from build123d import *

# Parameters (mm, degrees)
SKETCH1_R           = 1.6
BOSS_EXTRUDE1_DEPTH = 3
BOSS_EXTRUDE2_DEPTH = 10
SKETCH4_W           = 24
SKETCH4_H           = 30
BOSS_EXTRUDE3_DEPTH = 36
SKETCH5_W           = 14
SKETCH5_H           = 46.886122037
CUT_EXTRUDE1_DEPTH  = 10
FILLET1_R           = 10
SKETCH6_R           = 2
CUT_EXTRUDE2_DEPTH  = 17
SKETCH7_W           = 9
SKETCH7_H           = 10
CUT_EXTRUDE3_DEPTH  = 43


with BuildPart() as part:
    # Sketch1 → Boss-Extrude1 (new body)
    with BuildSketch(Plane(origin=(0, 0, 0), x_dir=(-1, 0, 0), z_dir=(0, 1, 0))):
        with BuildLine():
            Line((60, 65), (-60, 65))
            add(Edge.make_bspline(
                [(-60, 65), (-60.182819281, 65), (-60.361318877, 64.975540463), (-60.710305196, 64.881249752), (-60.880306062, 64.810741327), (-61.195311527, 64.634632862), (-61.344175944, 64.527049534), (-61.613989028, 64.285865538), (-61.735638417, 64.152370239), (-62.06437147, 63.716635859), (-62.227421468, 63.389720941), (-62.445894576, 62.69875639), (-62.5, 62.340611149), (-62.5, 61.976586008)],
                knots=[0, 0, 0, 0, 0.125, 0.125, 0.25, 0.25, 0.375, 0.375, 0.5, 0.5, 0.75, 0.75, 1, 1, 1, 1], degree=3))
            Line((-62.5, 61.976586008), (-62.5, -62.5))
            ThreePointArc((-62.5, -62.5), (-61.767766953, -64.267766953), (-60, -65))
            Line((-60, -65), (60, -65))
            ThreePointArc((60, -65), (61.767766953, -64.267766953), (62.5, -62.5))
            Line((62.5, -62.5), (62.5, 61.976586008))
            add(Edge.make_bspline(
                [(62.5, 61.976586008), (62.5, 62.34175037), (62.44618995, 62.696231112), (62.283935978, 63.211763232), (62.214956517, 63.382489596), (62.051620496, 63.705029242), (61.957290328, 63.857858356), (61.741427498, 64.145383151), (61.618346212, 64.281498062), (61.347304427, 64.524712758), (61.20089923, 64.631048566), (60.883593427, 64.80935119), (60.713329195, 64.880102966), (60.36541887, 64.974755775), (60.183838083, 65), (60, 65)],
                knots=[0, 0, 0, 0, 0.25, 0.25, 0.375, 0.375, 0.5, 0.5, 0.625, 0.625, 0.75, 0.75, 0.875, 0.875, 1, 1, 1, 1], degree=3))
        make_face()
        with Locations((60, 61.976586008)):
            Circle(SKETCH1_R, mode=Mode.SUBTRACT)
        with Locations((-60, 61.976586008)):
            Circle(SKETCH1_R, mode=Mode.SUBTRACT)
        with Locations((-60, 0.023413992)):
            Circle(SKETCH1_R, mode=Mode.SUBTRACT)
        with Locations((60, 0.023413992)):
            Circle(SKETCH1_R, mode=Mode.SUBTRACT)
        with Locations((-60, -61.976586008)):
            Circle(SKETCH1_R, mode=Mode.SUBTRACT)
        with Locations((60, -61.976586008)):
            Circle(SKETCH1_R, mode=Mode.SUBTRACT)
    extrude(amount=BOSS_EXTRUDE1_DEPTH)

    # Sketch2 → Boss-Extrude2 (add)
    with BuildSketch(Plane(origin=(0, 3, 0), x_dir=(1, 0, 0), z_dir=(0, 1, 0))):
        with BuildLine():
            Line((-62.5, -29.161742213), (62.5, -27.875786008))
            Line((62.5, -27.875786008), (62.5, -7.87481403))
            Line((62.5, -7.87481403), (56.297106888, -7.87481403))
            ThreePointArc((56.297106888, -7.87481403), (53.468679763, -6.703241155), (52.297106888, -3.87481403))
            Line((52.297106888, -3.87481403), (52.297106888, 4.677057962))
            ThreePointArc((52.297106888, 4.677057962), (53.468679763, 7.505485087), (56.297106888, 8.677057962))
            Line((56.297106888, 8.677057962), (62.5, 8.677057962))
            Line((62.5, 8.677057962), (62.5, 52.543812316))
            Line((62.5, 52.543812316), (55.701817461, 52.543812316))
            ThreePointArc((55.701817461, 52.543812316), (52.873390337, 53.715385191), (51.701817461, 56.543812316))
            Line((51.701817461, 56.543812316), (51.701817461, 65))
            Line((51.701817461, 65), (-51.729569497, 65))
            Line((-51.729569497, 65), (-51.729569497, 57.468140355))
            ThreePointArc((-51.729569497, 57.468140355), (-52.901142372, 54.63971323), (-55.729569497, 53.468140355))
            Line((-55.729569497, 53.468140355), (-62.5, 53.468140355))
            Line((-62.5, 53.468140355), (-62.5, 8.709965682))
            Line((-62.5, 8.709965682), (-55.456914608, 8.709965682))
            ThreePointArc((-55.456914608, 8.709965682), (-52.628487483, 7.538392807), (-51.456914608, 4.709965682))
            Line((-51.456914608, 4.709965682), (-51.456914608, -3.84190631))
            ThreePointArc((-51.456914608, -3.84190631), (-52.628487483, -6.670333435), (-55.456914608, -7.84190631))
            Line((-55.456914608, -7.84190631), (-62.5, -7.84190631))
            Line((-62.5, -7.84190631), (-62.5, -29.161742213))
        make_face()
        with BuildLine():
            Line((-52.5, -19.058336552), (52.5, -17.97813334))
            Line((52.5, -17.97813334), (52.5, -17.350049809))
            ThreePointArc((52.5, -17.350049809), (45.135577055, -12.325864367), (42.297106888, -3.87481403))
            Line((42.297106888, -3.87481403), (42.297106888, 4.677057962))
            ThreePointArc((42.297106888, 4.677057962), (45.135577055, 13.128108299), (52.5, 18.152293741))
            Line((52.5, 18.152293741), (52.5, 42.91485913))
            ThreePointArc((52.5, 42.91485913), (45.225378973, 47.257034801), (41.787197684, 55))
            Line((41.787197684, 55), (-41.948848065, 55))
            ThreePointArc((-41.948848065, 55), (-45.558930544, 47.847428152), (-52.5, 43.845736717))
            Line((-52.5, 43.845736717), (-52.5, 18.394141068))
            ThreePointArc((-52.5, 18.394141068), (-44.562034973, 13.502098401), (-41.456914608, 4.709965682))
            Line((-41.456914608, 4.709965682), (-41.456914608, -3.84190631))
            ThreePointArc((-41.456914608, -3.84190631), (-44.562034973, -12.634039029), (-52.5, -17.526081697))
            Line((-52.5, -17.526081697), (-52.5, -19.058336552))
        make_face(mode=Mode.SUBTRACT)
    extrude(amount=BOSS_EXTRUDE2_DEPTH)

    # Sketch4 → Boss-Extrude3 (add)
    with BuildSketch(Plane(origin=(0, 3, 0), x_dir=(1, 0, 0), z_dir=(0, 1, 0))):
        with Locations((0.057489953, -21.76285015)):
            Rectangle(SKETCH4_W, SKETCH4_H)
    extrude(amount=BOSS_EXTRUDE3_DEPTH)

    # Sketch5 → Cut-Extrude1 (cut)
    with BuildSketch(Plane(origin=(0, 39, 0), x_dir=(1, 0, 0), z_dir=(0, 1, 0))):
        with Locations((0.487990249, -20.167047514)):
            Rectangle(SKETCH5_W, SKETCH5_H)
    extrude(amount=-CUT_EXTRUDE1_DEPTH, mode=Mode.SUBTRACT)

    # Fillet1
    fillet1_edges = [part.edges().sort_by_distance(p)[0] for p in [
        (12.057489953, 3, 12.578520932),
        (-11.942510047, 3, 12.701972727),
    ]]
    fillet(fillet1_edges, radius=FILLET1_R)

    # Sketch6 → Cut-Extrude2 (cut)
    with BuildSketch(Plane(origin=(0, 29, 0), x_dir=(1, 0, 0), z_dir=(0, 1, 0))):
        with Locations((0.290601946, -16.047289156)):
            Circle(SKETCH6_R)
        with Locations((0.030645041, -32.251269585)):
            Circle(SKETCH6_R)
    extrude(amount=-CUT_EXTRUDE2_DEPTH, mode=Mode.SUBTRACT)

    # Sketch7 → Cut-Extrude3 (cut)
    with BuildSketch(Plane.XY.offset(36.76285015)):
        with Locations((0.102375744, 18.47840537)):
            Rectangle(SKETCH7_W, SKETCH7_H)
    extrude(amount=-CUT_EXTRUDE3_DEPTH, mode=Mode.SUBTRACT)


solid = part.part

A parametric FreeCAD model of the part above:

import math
import FreeCAD as App
import Part
import Sketcher


def edges_at(feature, points):
    """Names of the edges that pass closest to the given points."""
    edges = feature.Shape.Edges
    near = lambda p: min(range(len(edges)), key=lambda i: edges[i].distToShape(Part.Vertex(*p))[0])
    return sorted({f"Edge{near(p) + 1}" for p in points})


def add_polygon(sketch, points):
    """Adds a closed chain of lines whose ends are joined by coincident constraints."""
    first, n = sketch.GeometryCount, len(points)
    for a, b in zip(points, points[1:] + points[:1]):
        sketch.addGeometry(Part.LineSegment(App.Vector(*a, 0), App.Vector(*b, 0)), False)
    for i in range(n):
        sketch.addConstraint(Sketcher.Constraint("Coincident", first + i, 2, first + (i + 1) % n, 1))

doc = App.newDocument("Part")
body = doc.addObject("PartDesign::Body", "Body")

# Sketch on XZ plane
sketch1 = body.newObject("Sketcher::SketchObject", "Sketch")
sketch1.AttachmentSupport = (doc.getObject("XZ_Plane"), [""])
sketch1.MapMode = "FlatFace"
sketch1.addGeometry([
    Part.LineSegment(App.Vector(-60, 65, 0), App.Vector(60, 65, 0)),  # 0
    Part.BSplineCurve([App.Vector(60, 65, 0), App.Vector(60.182819, 65, 0), App.Vector(60.361319, 64.97554, 0), App.Vector(60.710305, 64.88125, 0), App.Vector(60.880306, 64.810741, 0), App.Vector(61.195312, 64.634633, 0), App.Vector(61.344176, 64.52705, 0), App.Vector(61.613989, 64.285866, 0), App.Vector(61.735638, 64.15237, 0), App.Vector(62.064371, 63.716636, 0), App.Vector(62.227421, 63.389721, 0), App.Vector(62.445895, 62.698756, 0), App.Vector(62.5, 62.340611, 0), App.Vector(62.5, 61.976586, 0)], [4, 2, 2, 2, 2, 2, 4], [0, 0.125, 0.25, 0.375, 0.5, 0.75, 1], False, 3, [1, 1, 1, 1, 1, 1, 1, 1, 1, 1, 1, 1, 1, 1], False),  # 1
    Part.LineSegment(App.Vector(62.5, 61.976586, 0), App.Vector(62.5, -62.5, 0)),  # 2
    Part.ArcOfCircle(Part.Circle(App.Vector(60, -62.5, 0), App.Vector(0, 0, 1), 2.5), math.radians(-90), math.radians(0)),  # 3
    Part.LineSegment(App.Vector(60, -65, 0), App.Vector(-60, -65, 0)),  # 4
    Part.ArcOfCircle(Part.Circle(App.Vector(-60, -62.5, 0), App.Vector(0, 0, 1), 2.5), math.radians(180), math.radians(270)),  # 5
    Part.LineSegment(App.Vector(-62.5, -62.5, 0), App.Vector(-62.5, 61.976586, 0)),  # 6
    Part.BSplineCurve([App.Vector(-62.5, 61.976586, 0), App.Vector(-62.5, 62.34175, 0), App.Vector(-62.44619, 62.696231, 0), App.Vector(-62.283936, 63.211763, 0), App.Vector(-62.214957, 63.38249, 0), App.Vector(-62.05162, 63.705029, 0), App.Vector(-61.95729, 63.857858, 0), App.Vector(-61.741427, 64.145383, 0), App.Vector(-61.618346, 64.281498, 0), App.Vector(-61.347304, 64.524713, 0), App.Vector(-61.200899, 64.631049, 0), App.Vector(-60.883593, 64.809351, 0), App.Vector(-60.713329, 64.880103, 0), App.Vector(-60.365419, 64.974756, 0), App.Vector(-60.183838, 65, 0), App.Vector(-60, 65, 0)], [4, 2, 2, 2, 2, 2, 2, 4], [0, 0.25, 0.375, 0.5, 0.625, 0.75, 0.875, 1], False, 3, [1, 1, 1, 1, 1, 1, 1, 1, 1, 1, 1, 1, 1, 1, 1, 1], False),  # 7
    Part.Circle(App.Vector(60, -61.976586, 0), App.Vector(0, 0, 1), 1.6),  # 8
    Part.Circle(App.Vector(-60, -61.976586, 0), App.Vector(0, 0, 1), 1.6),  # 9
    Part.Circle(App.Vector(60, 0.023414, 0), App.Vector(0, 0, 1), 1.6),  # 10
    Part.Circle(App.Vector(60, 61.976586, 0), App.Vector(0, 0, 1), 1.6),  # 11
    Part.Circle(App.Vector(-60, 0.023414, 0), App.Vector(0, 0, 1), 1.6),  # 12
    Part.Circle(App.Vector(-60, 61.976586, 0), App.Vector(0, 0, 1), 1.6),  # 13
], False)
sketch1.addConstraint([
    Sketcher.Constraint("Block", 1),
    Sketcher.Constraint("Block", 7),
    Sketcher.Constraint("Coincident", 0, 2, 1, 1),
    Sketcher.Constraint("Coincident", 1, 2, 2, 1),
    Sketcher.Constraint("Coincident", 2, 2, 3, 2),
    Sketcher.Constraint("Coincident", 3, 1, 4, 1),
    Sketcher.Constraint("Coincident", 4, 2, 5, 2),
    Sketcher.Constraint("Coincident", 5, 1, 6, 1),
    Sketcher.Constraint("Coincident", 6, 2, 7, 1),
    Sketcher.Constraint("Coincident", 7, 2, 0, 1),
    Sketcher.Constraint("Vertical", 2),
    Sketcher.Constraint("Horizontal", 4),
    Sketcher.Constraint("Vertical", 6),
    Sketcher.Constraint("Diameter", 8, 3.2),
    Sketcher.Constraint("Diameter", 9, 3.2),
    Sketcher.Constraint("Diameter", 10, 3.2),
    Sketcher.Constraint("Diameter", 11, 3.2),
    Sketcher.Constraint("Diameter", 12, 3.2),
    Sketcher.Constraint("Diameter", 13, 3.2),
    Sketcher.Constraint("Radius", 3, 2.5),
    Sketcher.Constraint("Radius", 5, 2.5),
    Sketcher.Constraint("DistanceX", 4, 2, 4, 1, 120.0),
    Sketcher.Constraint("DistanceX", -1, 1, 8, 3, 60.0),
    Sketcher.Constraint("DistanceX", 9, 3, -1, 1, 60.0),
    Sketcher.Constraint("DistanceX", -1, 1, 10, 3, 60.0),
    Sketcher.Constraint("DistanceX", -1, 1, 11, 3, 60.0),
    Sketcher.Constraint("DistanceX", 12, 3, -1, 1, 60.0),
    Sketcher.Constraint("DistanceX", 13, 3, -1, 1, 60.0),
    Sketcher.Constraint("DistanceX", -1, 1, 3, 1, 60.0),
    Sketcher.Constraint("DistanceY", 3, 1, -1, 1, 65.0),
    Sketcher.Constraint("DistanceY", 8, 3, 10, 3, 62.0),
    Sketcher.Constraint("DistanceY", 9, 3, 10, 3, 62.0),
    Sketcher.Constraint("DistanceY", 9, 3, 12, 3, 62.0),
    Sketcher.Constraint("DistanceY", 2, 2, -1, 1, 62.5),
    Sketcher.Constraint("DistanceY", 5, 1, -1, 1, 62.5),
    Sketcher.Constraint("DistanceY", 8, 3, -1, 1, 61.976586),
    Sketcher.Constraint("DistanceY", -1, 1, 11, 3, 61.976586),
    Sketcher.Constraint("DistanceY", -1, 1, 13, 3, 61.976586),
])
pad1 = body.newObject("PartDesign::Pad", "Pad")
pad1.Profile = sketch1
pad1.Length = 3
pad1.Reversed = True

# Sketch on XZ plane
sketch2 = body.newObject("Sketcher::SketchObject", "Sketch001")
sketch2.AttachmentSupport = (doc.getObject("XZ_Plane"), [""])
sketch2.MapMode = "FlatFace"
sketch2.AttachmentOffset = App.Placement(App.Vector(0, 0, -3), App.Rotation())
sketch2.addGeometry([
    Part.LineSegment(App.Vector(-62.5, 29.2, 0), App.Vector(62.5, 27.9, 0)),  # 0
    Part.LineSegment(App.Vector(62.5, 27.9, 0), App.Vector(62.5, 7.9, 0)),  # 1
    Part.LineSegment(App.Vector(62.5, 7.9, 0), App.Vector(56.3, 7.9, 0)),  # 2
    Part.ArcOfCircle(Part.Circle(App.Vector(56.3, 3.9, 0), App.Vector(0, 0, 1), 4), math.radians(90), math.radians(180)),  # 3
    Part.LineSegment(App.Vector(52.3, 3.9, 0), App.Vector(52.3, -4.7, 0)),  # 4
    Part.ArcOfCircle(Part.Circle(App.Vector(56.3, -4.7, 0), App.Vector(0, 0, 1), 4), math.radians(180), math.radians(270)),  # 5
    Part.LineSegment(App.Vector(56.3, -8.7, 0), App.Vector(62.5, -8.7, 0)),  # 6
    Part.LineSegment(App.Vector(62.5, -8.7, 0), App.Vector(62.5, -52.5, 0)),  # 7
    Part.LineSegment(App.Vector(62.5, -52.5, 0), App.Vector(55.7, -52.5, 0)),  # 8
    Part.ArcOfCircle(Part.Circle(App.Vector(55.7, -56.5, 0), App.Vector(0, 0, 1), 4), math.radians(90), math.radians(180)),  # 9
    Part.LineSegment(App.Vector(51.7, -56.5, 0), App.Vector(51.7, -65, 0)),  # 10
    Part.LineSegment(App.Vector(51.7, -65, 0), App.Vector(-51.7, -65, 0)),  # 11
    Part.LineSegment(App.Vector(-51.7, -65, 0), App.Vector(-51.7, -57.5, 0)),  # 12
    Part.ArcOfCircle(Part.Circle(App.Vector(-55.7, -57.5, 0), App.Vector(0, 0, 1), 4), math.radians(0), math.radians(90)),  # 13
    Part.LineSegment(App.Vector(-55.7, -53.5, 0), App.Vector(-62.5, -53.5, 0)),  # 14
    Part.LineSegment(App.Vector(-62.5, -53.5, 0), App.Vector(-62.5, -8.7, 0)),  # 15
    Part.LineSegment(App.Vector(-62.5, -8.7, 0), App.Vector(-55.5, -8.7, 0)),  # 16
    Part.ArcOfCircle(Part.Circle(App.Vector(-55.5, -4.7, 0), App.Vector(0, 0, 1), 4), math.radians(-90), math.radians(0)),  # 17
    Part.LineSegment(App.Vector(-51.5, -4.7, 0), App.Vector(-51.5, 3.8, 0)),  # 18
    Part.ArcOfCircle(Part.Circle(App.Vector(-55.5, 3.8, 0), App.Vector(0, 0, 1), 4), math.radians(0), math.radians(90)),  # 19
    Part.LineSegment(App.Vector(-55.5, 7.8, 0), App.Vector(-62.5, 7.8, 0)),  # 20
    Part.LineSegment(App.Vector(-62.5, 7.8, 0), App.Vector(-62.5, 29.2, 0)),  # 21
    Part.LineSegment(App.Vector(52.5, 18, 0), App.Vector(-52.5, 19.1, 0)),  # 22
    Part.LineSegment(App.Vector(-52.5, 19.1, 0), App.Vector(-52.5, 17.5, 0)),  # 23
    Part.ArcOfCircle(Part.Circle(App.Vector(-55.5, 3.8, 0), App.Vector(0, 0, 1), 14), math.radians(0), math.radians(78)),  # 24
    Part.LineSegment(App.Vector(-41.5, 3.8, 0), App.Vector(-41.5, -4.7, 0)),  # 25
    Part.ArcOfCircle(Part.Circle(App.Vector(-55.5, -4.7, 0), App.Vector(0, 0, 1), 14), math.radians(-78), math.radians(0)),  # 26
    Part.LineSegment(App.Vector(-52.5, -18.4, 0), App.Vector(-52.5, -43.8, 0)),  # 27
    Part.ArcOfCircle(Part.Circle(App.Vector(-55.7, -57.5, 0), App.Vector(0, 0, 1), 14), math.radians(10), math.radians(77)),  # 28
    Part.LineSegment(App.Vector(-41.9, -55, 0), App.Vector(41.8, -55, 0)),  # 29
    Part.ArcOfCircle(Part.Circle(App.Vector(55.7, -56.5, 0), App.Vector(0, 0, 1), 14), math.radians(103), math.radians(174)),  # 30
    Part.LineSegment(App.Vector(52.5, -42.9, 0), App.Vector(52.5, -18.2, 0)),  # 31
    Part.ArcOfCircle(Part.Circle(App.Vector(56.3, -4.7, 0), App.Vector(0, 0, 1), 14), math.radians(180), math.radians(254)),  # 32
    Part.LineSegment(App.Vector(42.3, -4.7, 0), App.Vector(42.3, 3.9, 0)),  # 33
    Part.ArcOfCircle(Part.Circle(App.Vector(56.3, 3.9, 0), App.Vector(0, 0, 1), 14), math.radians(106), math.radians(180)),  # 34
    Part.LineSegment(App.Vector(52.5, 17.4, 0), App.Vector(52.5, 18, 0)),  # 35
], False)
sketch2.addConstraint([
    Sketcher.Constraint("Coincident", 0, 2, 1, 1),
    Sketcher.Constraint("Coincident", 1, 2, 2, 1),
    Sketcher.Constraint("Tangent", 2, 2, 3, 1),
    Sketcher.Constraint("Tangent", 3, 2, 4, 1),
    Sketcher.Constraint("Tangent", 4, 2, 5, 1),
    Sketcher.Constraint("Tangent", 5, 2, 6, 1),
    Sketcher.Constraint("Coincident", 6, 2, 7, 1),
    Sketcher.Constraint("Coincident", 7, 2, 8, 1),
    Sketcher.Constraint("Tangent", 8, 2, 9, 1),
    Sketcher.Constraint("Tangent", 9, 2, 10, 1),
    Sketcher.Constraint("Coincident", 10, 2, 11, 1),
    Sketcher.Constraint("Coincident", 11, 2, 12, 1),
    Sketcher.Constraint("Tangent", 12, 2, 13, 1),
    Sketcher.Constraint("Tangent", 13, 2, 14, 1),
    Sketcher.Constraint("Coincident", 14, 2, 15, 1),
    Sketcher.Constraint("Coincident", 15, 2, 16, 1),
    Sketcher.Constraint("Tangent", 16, 2, 17, 1),
    Sketcher.Constraint("Tangent", 17, 2, 18, 1),
    Sketcher.Constraint("Tangent", 18, 2, 19, 1),
    Sketcher.Constraint("Tangent", 19, 2, 20, 1),
    Sketcher.Constraint("Coincident", 20, 2, 21, 1),
    Sketcher.Constraint("Coincident", 21, 2, 0, 1),
    Sketcher.Constraint("Coincident", 22, 2, 23, 1),
    Sketcher.Constraint("Coincident", 23, 2, 24, 2),
    Sketcher.Constraint("Tangent", 24, 1, 25, 1),
    Sketcher.Constraint("Tangent", 25, 2, 26, 2),
    Sketcher.Constraint("Coincident", 26, 1, 27, 1),
    Sketcher.Constraint("Coincident", 27, 2, 28, 2),
    Sketcher.Constraint("Coincident", 28, 1, 29, 1),
    Sketcher.Constraint("Coincident", 29, 2, 30, 2),
    Sketcher.Constraint("Coincident", 30, 1, 31, 1),
    Sketcher.Constraint("Coincident", 31, 2, 32, 2),
    Sketcher.Constraint("Tangent", 32, 1, 33, 1),
    Sketcher.Constraint("Tangent", 33, 2, 34, 2),
    Sketcher.Constraint("Coincident", 34, 1, 35, 1),
    Sketcher.Constraint("Coincident", 35, 2, 22, 1),
    Sketcher.Constraint("Vertical", 1),
    Sketcher.Constraint("Horizontal", 2),
    Sketcher.Constraint("Vertical", 4),
    Sketcher.Constraint("Horizontal", 6),
    Sketcher.Constraint("Vertical", 7),
    Sketcher.Constraint("Horizontal", 8),
    Sketcher.Constraint("Vertical", 10),
    Sketcher.Constraint("Horizontal", 11),
    Sketcher.Constraint("Vertical", 12),
    Sketcher.Constraint("Horizontal", 14),
    Sketcher.Constraint("Vertical", 15),
    Sketcher.Constraint("Horizontal", 16),
    Sketcher.Constraint("Vertical", 18),
    Sketcher.Constraint("Horizontal", 20),
    Sketcher.Constraint("Vertical", 21),
    Sketcher.Constraint("Vertical", 23),
    Sketcher.Constraint("Vertical", 25),
    Sketcher.Constraint("Vertical", 27),
    Sketcher.Constraint("Horizontal", 29),
    Sketcher.Constraint("Vertical", 31),
    Sketcher.Constraint("Vertical", 33),
    Sketcher.Constraint("Vertical", 35),
    Sketcher.Constraint("Coincident", 24, 3, 19, 3),
    Sketcher.Constraint("Coincident", 26, 3, 17, 3),
    Sketcher.Constraint("Coincident", 28, 3, 13, 3),
    Sketcher.Constraint("Coincident", 30, 3, 9, 3),
    Sketcher.Constraint("Coincident", 32, 3, 5, 3),
    Sketcher.Constraint("Coincident", 34, 3, 3, 3),
    Sketcher.Constraint("Equal", 3, 5),
    Sketcher.Constraint("Equal", 5, 9),
    Sketcher.Constraint("Equal", 9, 13),
    Sketcher.Constraint("Equal", 13, 17),
    Sketcher.Constraint("Equal", 17, 19),
    Sketcher.Constraint("Equal", 26, 28),
    Sketcher.Constraint("Equal", 28, 30),
    Sketcher.Constraint("Equal", 30, 32),
    Sketcher.Constraint("Parallel", 0, 22),
    Sketcher.Constraint("Vertical", 1, 2, 6, 2),
    Sketcher.Constraint("Vertical", 15, 2, 20, 2),
    Sketcher.Constraint("Vertical", 23, 2, 26, 1),
    Sketcher.Constraint("Vertical", 31, 2, 34, 1),
    Sketcher.Constraint("Equal", 4, 18),
    Sketcher.Constraint("Radius", 3, 4.0),
    Sketcher.Constraint("Radius", 24, 14.0),
    Sketcher.Constraint("DistanceY", 10, 2, -1, 1, 65.0),
    Sketcher.Constraint("DistanceY", 28, 1, -1, 1, 55.0),
    Sketcher.Constraint("DistanceX", 21, 2, 22, 2, 10.0),
    Sketcher.Constraint("DistanceX", 30, 1, 7, 2, 10.0),
    Sketcher.Constraint("DistanceX", -1, 1, 0, 2, 62.5),
    Sketcher.Constraint("DistanceX", 14, 2, -1, 1, 62.5),
    Sketcher.Constraint("DistanceX", 14, 2, 14, 1, 6.770431),
    Sketcher.Constraint("DistanceY", 1, 2, 1, 1, 20.000972),
    Sketcher.Constraint("DistanceY", 4, 2, 4, 1, 8.551872),
    Sketcher.Constraint("DistanceY", 12, 1, 12, 2, 7.53186),
    Sketcher.Constraint("DistanceY", 30, 3, 0, 2, 84.419598),
    Sketcher.Constraint("DistanceX", 2, 2, 2, 1, 6.202893),
    Sketcher.Constraint("DistanceX", 8, 2, 8, 1, 6.798183),
    Sketcher.Constraint("DistanceX", 16, 1, 16, 2, 7.043085),
    Sketcher.Constraint("DistanceX", 29, 1, 29, 2, 83.736046),
    Sketcher.Constraint("DistanceY", 15, 1, 15, 2, 44.758175),
    Sketcher.Constraint("DistanceY", 21, 1, 21, 2, 21.319836),
    Sketcher.Constraint("DistanceY", 23, 2, 23, 1, 1.532255),
])
pad2 = body.newObject("PartDesign::Pad", "Pad001")
pad2.Profile = sketch2
pad2.Length = 10
pad2.Reversed = True

# Sketch on XZ plane
sketch3 = body.newObject("Sketcher::SketchObject", "Sketch002")
sketch3.AttachmentSupport = (doc.getObject("XZ_Plane"), [""])
sketch3.MapMode = "FlatFace"
sketch3.AttachmentOffset = App.Placement(App.Vector(0, 0, -3), App.Rotation())
add_polygon(sketch3, [(-12, 7), (-12, 37), (12, 37), (12, 7)])  # lines 0-3
sketch3.addConstraint([
    Sketcher.Constraint("Vertical", 0),
    Sketcher.Constraint("Horizontal", 1),
    Sketcher.Constraint("Vertical", 2),
    Sketcher.Constraint("Horizontal", 3),
    Sketcher.Constraint("DistanceX", 1, 1, 1, 2, 24.0),
    Sketcher.Constraint("DistanceY", 0, 1, 0, 2, 30.0),
    Sketcher.Constraint("DistanceX", 0, 2, -1, 1, 11.94251),
    Sketcher.Constraint("DistanceY", -1, 1, 0, 2, 36.76285),
])
pad3 = body.newObject("PartDesign::Pad", "Pad002")
pad3.Profile = sketch3
pad3.Length = 36
pad3.Reversed = True

# Sketch on XZ plane
sketch4 = body.newObject("Sketcher::SketchObject", "Sketch003")
sketch4.AttachmentSupport = (doc.getObject("XZ_Plane"), [""])
sketch4.MapMode = "FlatFace"
sketch4.AttachmentOffset = App.Placement(App.Vector(0, 0, -39), App.Rotation())
add_polygon(sketch4, [(-7, -3), (-7, 44), (7, 44), (7, -3)])  # lines 0-3
sketch4.addConstraint([
    Sketcher.Constraint("Vertical", 0),
    Sketcher.Constraint("Horizontal", 1),
    Sketcher.Constraint("Vertical", 2),
    Sketcher.Constraint("Horizontal", 3),
    Sketcher.Constraint("DistanceX", 1, 1, 1, 2, 14.0),
    Sketcher.Constraint("DistanceY", 0, 1, 0, 2, 46.886122),
    Sketcher.Constraint("DistanceX", 0, 2, -1, 1, 6.51201),
    Sketcher.Constraint("DistanceY", -1, 1, 0, 2, 43.610109),
])
pocket1 = body.newObject("PartDesign::Pocket", "Pocket")
pocket1.Profile = sketch4
pocket1.Length = 10
pocket1.Reversed = True
doc.recompute()

fillet = body.newObject("PartDesign::Fillet", "Fillet")
fillet.Base = (pocket1, edges_at(pocket1, [(12.057, 3, 12.579), (-11.943, 3, 12.702)]))
fillet.Radius = 10

# Sketch on XZ plane
sketch5 = body.newObject("Sketcher::SketchObject", "Sketch004")
sketch5.AttachmentSupport = (doc.getObject("XZ_Plane"), [""])
sketch5.MapMode = "FlatFace"
sketch5.AttachmentOffset = App.Placement(App.Vector(0, 0, -29), App.Rotation())
sketch5.addGeometry([
    Part.Circle(App.Vector(0.3, 16, 0), App.Vector(0, 0, 1), 2),
    Part.Circle(App.Vector(0, 32.3, 0), App.Vector(0, 0, 1), 2),
], False)
sketch5.addConstraint([
    Sketcher.Constraint("Equal", 0, 1),
    Sketcher.Constraint("Diameter", 0, 4.0),
    Sketcher.Constraint("DistanceX", -1, 1, 0, 3, 0.290602),
    Sketcher.Constraint("DistanceY", -1, 1, 0, 3, 16.047289),
    Sketcher.Constraint("DistanceY", -1, 1, 1, 3, 32.25127),
    Sketcher.Constraint("DistanceX", -1, 1, 1, 3, 0.030645),
])
pocket2 = body.newObject("PartDesign::Pocket", "Pocket001")
pocket2.Profile = sketch5
pocket2.Length = 17
pocket2.Reversed = True

# Sketch on XY plane
sketch6 = body.newObject("Sketcher::SketchObject", "Sketch005")
sketch6.AttachmentSupport = (doc.getObject("XY_Plane"), [""])
sketch6.MapMode = "FlatFace"
sketch6.AttachmentOffset = App.Placement(App.Vector(0, 0, 36.76285), App.Rotation())
add_polygon(sketch6, [(-4, 23), (-4, 13), (5, 13), (5, 23)])  # lines 0-3
sketch6.addConstraint([
    Sketcher.Constraint("Vertical", 0),
    Sketcher.Constraint("Horizontal", 1),
    Sketcher.Constraint("Vertical", 2),
    Sketcher.Constraint("Horizontal", 3),
    Sketcher.Constraint("DistanceX", 1, 1, 1, 2, 9.0),
    Sketcher.Constraint("DistanceY", 0, 2, 0, 1, 10.0),
    Sketcher.Constraint("DistanceX", 0, 2, -1, 1, 4.397624),
    Sketcher.Constraint("DistanceY", -1, 1, 0, 2, 13.478405),
])
pocket3 = body.newObject("PartDesign::Pocket", "Pocket002")
pocket3.Profile = sketch6
pocket3.Length = 43

doc.recompute()
